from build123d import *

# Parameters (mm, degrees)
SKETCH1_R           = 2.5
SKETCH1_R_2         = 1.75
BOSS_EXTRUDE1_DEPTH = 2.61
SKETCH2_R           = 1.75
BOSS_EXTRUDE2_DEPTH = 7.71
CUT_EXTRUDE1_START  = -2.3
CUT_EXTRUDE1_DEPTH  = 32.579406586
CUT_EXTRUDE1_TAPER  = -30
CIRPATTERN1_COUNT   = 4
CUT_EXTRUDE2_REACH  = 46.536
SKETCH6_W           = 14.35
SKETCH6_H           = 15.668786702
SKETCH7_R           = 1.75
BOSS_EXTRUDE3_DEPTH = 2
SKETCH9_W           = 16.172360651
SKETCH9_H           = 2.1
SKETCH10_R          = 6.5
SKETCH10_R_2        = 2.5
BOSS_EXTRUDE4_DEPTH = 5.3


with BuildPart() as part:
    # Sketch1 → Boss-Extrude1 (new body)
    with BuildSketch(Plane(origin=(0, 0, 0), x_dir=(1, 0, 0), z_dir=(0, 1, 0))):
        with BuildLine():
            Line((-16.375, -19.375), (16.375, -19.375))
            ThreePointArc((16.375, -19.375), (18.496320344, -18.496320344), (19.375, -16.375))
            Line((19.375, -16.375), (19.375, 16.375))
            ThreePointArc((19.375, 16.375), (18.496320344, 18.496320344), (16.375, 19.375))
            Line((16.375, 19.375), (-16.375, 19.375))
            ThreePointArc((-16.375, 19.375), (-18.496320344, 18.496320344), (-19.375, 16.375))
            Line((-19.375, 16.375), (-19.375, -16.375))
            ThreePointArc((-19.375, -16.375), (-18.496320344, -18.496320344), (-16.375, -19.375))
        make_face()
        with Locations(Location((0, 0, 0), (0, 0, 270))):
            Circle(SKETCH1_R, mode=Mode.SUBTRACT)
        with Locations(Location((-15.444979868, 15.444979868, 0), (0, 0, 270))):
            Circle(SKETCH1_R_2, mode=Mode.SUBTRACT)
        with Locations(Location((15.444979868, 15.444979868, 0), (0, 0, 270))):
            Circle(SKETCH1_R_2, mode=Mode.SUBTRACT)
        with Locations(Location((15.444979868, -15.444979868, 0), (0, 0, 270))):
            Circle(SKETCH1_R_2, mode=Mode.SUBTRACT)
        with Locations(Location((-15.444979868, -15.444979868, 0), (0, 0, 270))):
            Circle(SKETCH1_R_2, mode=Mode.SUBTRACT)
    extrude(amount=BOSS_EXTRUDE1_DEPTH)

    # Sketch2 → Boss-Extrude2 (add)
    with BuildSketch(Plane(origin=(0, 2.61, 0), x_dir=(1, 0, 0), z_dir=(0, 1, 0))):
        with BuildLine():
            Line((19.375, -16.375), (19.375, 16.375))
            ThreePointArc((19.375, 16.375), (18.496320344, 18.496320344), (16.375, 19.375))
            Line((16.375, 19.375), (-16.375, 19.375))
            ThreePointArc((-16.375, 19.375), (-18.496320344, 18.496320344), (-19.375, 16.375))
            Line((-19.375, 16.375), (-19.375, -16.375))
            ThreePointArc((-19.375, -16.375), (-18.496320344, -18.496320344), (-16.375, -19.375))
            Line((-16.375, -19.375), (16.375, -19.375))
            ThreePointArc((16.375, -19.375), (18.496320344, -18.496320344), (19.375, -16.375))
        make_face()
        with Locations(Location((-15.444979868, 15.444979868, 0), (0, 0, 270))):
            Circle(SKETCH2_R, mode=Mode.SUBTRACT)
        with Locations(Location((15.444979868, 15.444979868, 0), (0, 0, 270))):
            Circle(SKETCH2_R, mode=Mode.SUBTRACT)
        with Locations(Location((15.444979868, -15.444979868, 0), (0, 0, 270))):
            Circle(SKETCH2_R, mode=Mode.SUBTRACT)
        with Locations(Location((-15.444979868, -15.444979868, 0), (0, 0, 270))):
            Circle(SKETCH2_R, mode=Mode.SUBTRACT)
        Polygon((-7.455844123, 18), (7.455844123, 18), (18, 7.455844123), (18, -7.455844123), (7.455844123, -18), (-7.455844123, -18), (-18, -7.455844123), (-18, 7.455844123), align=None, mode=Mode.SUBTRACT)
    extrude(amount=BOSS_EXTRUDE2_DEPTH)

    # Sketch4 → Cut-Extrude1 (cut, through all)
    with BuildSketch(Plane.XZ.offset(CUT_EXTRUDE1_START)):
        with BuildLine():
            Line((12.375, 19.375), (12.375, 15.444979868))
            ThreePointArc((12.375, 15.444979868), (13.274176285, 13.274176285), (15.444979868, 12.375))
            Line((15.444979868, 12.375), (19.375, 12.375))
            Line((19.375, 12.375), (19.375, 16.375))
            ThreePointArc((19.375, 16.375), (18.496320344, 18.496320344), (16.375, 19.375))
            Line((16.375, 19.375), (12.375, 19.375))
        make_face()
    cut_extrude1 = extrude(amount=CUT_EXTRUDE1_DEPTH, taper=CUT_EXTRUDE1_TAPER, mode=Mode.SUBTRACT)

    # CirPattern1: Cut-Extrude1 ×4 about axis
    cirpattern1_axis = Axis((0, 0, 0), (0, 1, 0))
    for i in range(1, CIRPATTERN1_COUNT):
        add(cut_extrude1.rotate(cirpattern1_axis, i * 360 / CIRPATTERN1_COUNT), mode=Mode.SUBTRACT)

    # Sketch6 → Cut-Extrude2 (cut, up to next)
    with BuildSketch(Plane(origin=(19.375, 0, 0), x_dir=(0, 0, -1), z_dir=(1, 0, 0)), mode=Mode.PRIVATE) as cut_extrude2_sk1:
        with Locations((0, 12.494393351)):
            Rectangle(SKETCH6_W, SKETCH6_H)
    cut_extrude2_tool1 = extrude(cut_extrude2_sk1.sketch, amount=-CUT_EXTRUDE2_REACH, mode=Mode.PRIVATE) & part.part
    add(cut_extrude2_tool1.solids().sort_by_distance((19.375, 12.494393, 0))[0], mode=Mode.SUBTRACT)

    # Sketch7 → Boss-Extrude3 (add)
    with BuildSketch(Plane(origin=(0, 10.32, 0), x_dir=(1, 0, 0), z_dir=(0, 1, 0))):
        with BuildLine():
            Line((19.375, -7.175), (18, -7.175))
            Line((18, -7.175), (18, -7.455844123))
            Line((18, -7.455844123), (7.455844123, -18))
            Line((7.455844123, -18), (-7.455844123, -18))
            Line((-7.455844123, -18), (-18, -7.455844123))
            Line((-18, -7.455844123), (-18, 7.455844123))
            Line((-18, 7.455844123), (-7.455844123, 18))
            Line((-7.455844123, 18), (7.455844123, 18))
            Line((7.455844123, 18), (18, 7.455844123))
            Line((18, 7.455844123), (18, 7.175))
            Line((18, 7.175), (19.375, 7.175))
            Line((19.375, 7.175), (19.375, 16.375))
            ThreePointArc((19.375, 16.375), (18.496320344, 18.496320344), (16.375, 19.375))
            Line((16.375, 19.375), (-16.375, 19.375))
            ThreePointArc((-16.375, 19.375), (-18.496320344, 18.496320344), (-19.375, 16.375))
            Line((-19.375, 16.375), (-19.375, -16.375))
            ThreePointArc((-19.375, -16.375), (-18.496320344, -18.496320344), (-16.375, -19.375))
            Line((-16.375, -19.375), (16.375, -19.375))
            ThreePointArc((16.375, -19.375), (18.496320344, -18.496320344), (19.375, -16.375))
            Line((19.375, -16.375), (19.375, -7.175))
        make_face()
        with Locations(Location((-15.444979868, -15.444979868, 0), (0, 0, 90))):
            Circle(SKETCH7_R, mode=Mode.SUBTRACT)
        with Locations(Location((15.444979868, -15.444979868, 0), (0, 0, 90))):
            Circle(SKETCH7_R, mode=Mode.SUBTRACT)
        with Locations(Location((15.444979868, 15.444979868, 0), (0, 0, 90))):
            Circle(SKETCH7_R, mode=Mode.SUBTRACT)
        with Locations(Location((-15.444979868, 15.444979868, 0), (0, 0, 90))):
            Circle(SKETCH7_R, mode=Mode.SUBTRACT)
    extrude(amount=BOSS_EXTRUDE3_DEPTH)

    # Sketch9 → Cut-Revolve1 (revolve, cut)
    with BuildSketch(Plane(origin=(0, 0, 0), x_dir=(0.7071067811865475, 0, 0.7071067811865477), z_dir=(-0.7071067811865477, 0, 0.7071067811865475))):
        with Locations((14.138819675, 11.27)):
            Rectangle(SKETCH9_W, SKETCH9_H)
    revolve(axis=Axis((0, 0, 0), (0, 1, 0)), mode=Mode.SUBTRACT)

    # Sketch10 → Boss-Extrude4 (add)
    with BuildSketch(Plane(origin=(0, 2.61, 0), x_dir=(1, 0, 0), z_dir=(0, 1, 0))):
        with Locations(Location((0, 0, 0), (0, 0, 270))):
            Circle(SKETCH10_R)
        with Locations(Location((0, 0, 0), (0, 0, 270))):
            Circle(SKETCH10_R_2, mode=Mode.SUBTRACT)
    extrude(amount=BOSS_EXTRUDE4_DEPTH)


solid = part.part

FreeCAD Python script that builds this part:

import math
import FreeCAD as App
import Part
import Sketcher
from FreeCAD import Vector

doc = App.newDocument("Part")
body = doc.addObject("PartDesign::Body", "Body")

# Sketch on XZ plane
sketch1 = doc.addObject("Sketcher::SketchObject", "Sketch")
body.addObject(sketch1)
sketch1.AttachmentSupport = (doc.XZ_Plane, [""])
sketch1.MapMode = "FlatFace"
sketch1.addGeometry([
    Part.LineSegment(Vector(-16.4, 19.4, 0), Vector(16.4, 19.4, 0)),  # 0
    Part.ArcOfCircle(Part.Circle(Vector(16.4, 16.4, 0), Vector(0, 0, 1), 3), math.radians(0), math.radians(90)),  # 1
    Part.LineSegment(Vector(19.4, 16.4, 0), Vector(19.4, -16.4, 0)),  # 2
    Part.ArcOfCircle(Part.Circle(Vector(16.4, -16.4, 0), Vector(0, 0, 1), 3), math.radians(-90), math.radians(0)),  # 3
    Part.LineSegment(Vector(16.4, -19.4, 0), Vector(-16.4, -19.4, 0)),  # 4
    Part.ArcOfCircle(Part.Circle(Vector(-16.4, -16.4, 0), Vector(0, 0, 1), 3), math.radians(180), math.radians(270)),  # 5
    Part.LineSegment(Vector(-19.4, -16.4, 0), Vector(-19.4, 16.4, 0)),  # 6
    Part.ArcOfCircle(Part.Circle(Vector(-16.4, 16.4, 0), Vector(0, 0, 1), 3), math.radians(90), math.radians(180)),  # 7
    Part.Circle(Vector(-15.4, 15.4, 0), Vector(0, 0, 1), 1.8),  # 8
    Part.Circle(Vector(15.4, 15.4, 0), Vector(0, 0, 1), 1.8),  # 9
    Part.Circle(Vector(0, 0, 0), Vector(0, 0, 1), 2.5),  # 10
    Part.Circle(Vector(-15.4, -15.4, 0), Vector(0, 0, 1), 1.8),  # 11
    Part.Circle(Vector(15.4, -15.4, 0), Vector(0, 0, 1), 1.8),  # 12
], False)
sketch1.addConstraint([
    Sketcher.Constraint("Tangent", 0, 2, 1, 2),
    Sketcher.Constraint("Tangent", 1, 1, 2, 1),
    Sketcher.Constraint("Tangent", 2, 2, 3, 2),
    Sketcher.Constraint("Tangent", 3, 1, 4, 1),
    Sketcher.Constraint("Tangent", 4, 2, 5, 2),
    Sketcher.Constraint("Tangent", 5, 1, 6, 1),
    Sketcher.Constraint("Tangent", 6, 2, 7, 2),
    Sketcher.Constraint("Tangent", 7, 1, 0, 1),
    Sketcher.Constraint("Horizontal", 0),
    Sketcher.Constraint("Vertical", 2),
    Sketcher.Constraint("Horizontal", 4),
    Sketcher.Constraint("Vertical", 6),
    Sketcher.Constraint("Coincident", 10, 3, -1, 1),
    Sketcher.Constraint("Equal", 1, 3),
    Sketcher.Constraint("Equal", 3, 5),
    Sketcher.Constraint("Equal", 5, 7),
    Sketcher.Constraint("Equal", 8, 9),
    Sketcher.Constraint("Equal", 9, 11),
    Sketcher.Constraint("Equal", 11, 12),
    Sketcher.Constraint("Symmetric", 1, 3, 5, 3, -1, 1),
    Sketcher.Constraint("Symmetric", 9, 3, 11, 3, -1, 1),
    Sketcher.Constraint("Symmetric", 8, 3, 12, 3, -1, 1),
    Sketcher.Constraint("Symmetric", 8, 3, 9, 3, -2),
    Sketcher.Constraint("Equal", 4, 2),
    Sketcher.Constraint("Diameter", 10, 5.0),
    Sketcher.Constraint("Radius", 1, 3.0),
    Sketcher.Constraint("Diameter", 8, 3.5),
    Sketcher.Constraint("DistanceX", 0, 1, 0, 2, 32.75),
    Sketcher.Constraint("DistanceX", 8, 3, -1, 1, 15.44498),
    Sketcher.Constraint("DistanceY", -1, 1, 8, 3, 15.44498),
])
pad1 = doc.addObject("PartDesign::Pad", "Pad")
body.addObject(pad1)
pad1.Profile = sketch1
pad1.Length = 2.61
pad1.Reversed = True

# Sketch on XZ plane
sketch2 = doc.addObject("Sketcher::SketchObject", "Sketch001")
body.addObject(sketch2)
sketch2.AttachmentSupport = (doc.XZ_Plane, [""])
sketch2.MapMode = "FlatFace"
sketch2.AttachmentOffset = App.Placement(Vector(0, 0, -2.61), App.Rotation())
sketch2.addGeometry([
    Part.LineSegment(Vector(19.4, 16.4, 0), Vector(19.4, -16.4, 0)),  # 0
    Part.ArcOfCircle(Part.Circle(Vector(16.4, -16.4, 0), Vector(0, 0, 1), 3), math.radians(-90), math.radians(0)),  # 1
    Part.LineSegment(Vector(16.4, -19.4, 0), Vector(-16.4, -19.4, 0)),  # 2
    Part.ArcOfCircle(Part.Circle(Vector(-16.4, -16.4, 0), Vector(0, 0, 1), 3), math.radians(180), math.radians(270)),  # 3
    Part.LineSegment(Vector(-19.4, -16.4, 0), Vector(-19.4, 16.4, 0)),  # 4
    Part.ArcOfCircle(Part.Circle(Vector(-16.4, 16.4, 0), Vector(0, 0, 1), 3), math.radians(90), math.radians(180)),  # 5
    Part.LineSegment(Vector(-16.4, 19.4, 0), Vector(16.4, 19.4, 0)),  # 6
    Part.ArcOfCircle(Part.Circle(Vector(16.4, 16.4, 0), Vector(0, 0, 1), 3), math.radians(0), math.radians(90)),  # 7
    Part.Circle(Vector(-15.4, 15.4, 0), Vector(0, 0, 1), 1.8),  # 8
    Part.Circle(Vector(15.4, 15.4, 0), Vector(0, 0, 1), 1.8),  # 9
    Part.Circle(Vector(-15.4, -15.4, 0), Vector(0, 0, 1), 1.8),  # 10
    Part.LineSegment(Vector(-18, -7.5, 0), Vector(-7.5, -18, 0)),  # 11
    Part.LineSegment(Vector(-7.5, -18, 0), Vector(7.5, -18, 0)),  # 12
    Part.LineSegment(Vector(7.5, -18, 0), Vector(18, -7.5, 0)),  # 13
    Part.LineSegment(Vector(18, -7.5, 0), Vector(18, 7.5, 0)),  # 14
    Part.LineSegment(Vector(18, 7.5, 0), Vector(7.5, 18, 0)),  # 15
    Part.LineSegment(Vector(7.5, 18, 0), Vector(-7.5, 18, 0)),  # 16
    Part.LineSegment(Vector(-7.5, 18, 0), Vector(-18, 7.5, 0)),  # 17
    Part.LineSegment(Vector(-18, 7.5, 0), Vector(-18, -7.5, 0)),  # 18
    Part.Circle(Vector(15.4, -15.4, 0), Vector(0, 0, 1), 1.8),  # 19
], False)
sketch2.addConstraint([
    Sketcher.Constraint("Tangent", 0, 2, 1, 2),
    Sketcher.Constraint("Tangent", 1, 1, 2, 1),
    Sketcher.Constraint("Tangent", 2, 2, 3, 2),
    Sketcher.Constraint("Tangent", 3, 1, 4, 1),
    Sketcher.Constraint("Tangent", 4, 2, 5, 2),
    Sketcher.Constraint("Tangent", 5, 1, 6, 1),
    Sketcher.Constraint("Tangent", 6, 2, 7, 2),
    Sketcher.Constraint("Tangent", 7, 1, 0, 1),
    Sketcher.Constraint("Coincident", 11, 2, 12, 1),
    Sketcher.Constraint("Coincident", 12, 2, 13, 1),
    Sketcher.Constraint("Coincident", 13, 2, 14, 1),
    Sketcher.Constraint("Coincident", 14, 2, 15, 1),
    Sketcher.Constraint("Coincident", 15, 2, 16, 1),
    Sketcher.Constraint("Coincident", 16, 2, 17, 1),
    Sketcher.Constraint("Coincident", 17, 2, 18, 1),
    Sketcher.Constraint("Coincident", 18, 2, 11, 1),
    Sketcher.Constraint("Vertical", 0),
    Sketcher.Constraint("Horizontal", 2),
    Sketcher.Constraint("Vertical", 4),
    Sketcher.Constraint("Horizontal", 6),
    Sketcher.Constraint("Horizontal", 12),
    Sketcher.Constraint("Vertical", 14),
    Sketcher.Constraint("Horizontal", 16),
    Sketcher.Constraint("Vertical", 18),
    Sketcher.Constraint("Equal", 1, 3),
    Sketcher.Constraint("Equal", 3, 5),
    Sketcher.Constraint("Equal", 5, 7),
    Sketcher.Constraint("Equal", 8, 9),
    Sketcher.Constraint("Equal", 9, 10),
    Sketcher.Constraint("Equal", 10, 19),
    Sketcher.Constraint("Symmetric", 1, 3, 5, 3, -1, 1),
    Sketcher.Constraint("Symmetric", 9, 3, 10, 3, -1, 1),
    Sketcher.Constraint("Symmetric", 8, 3, 19, 3, -1, 1),
    Sketcher.Constraint("Symmetric", 11, 2, 15, 2, -1, 1),
    Sketcher.Constraint("Symmetric", 13, 2, 17, 2, -1, 1),
    Sketcher.Constraint("Symmetric", 8, 3, 9, 3, -2),
    Sketcher.Constraint("Perpendicular", 11, 13),
    Sketcher.Constraint("Perpendicular", 13, 15),
    Sketcher.Constraint("Perpendicular", 15, 17),
    Sketcher.Constraint("Horizontal", 14, 2, 17, 2),
    Sketcher.Constraint("Vertical", 12, 2, 15, 2),
    Sketcher.Constraint("Equal", 6, 0),
    Sketcher.Constraint("Equal", 16, 14),
    Sketcher.Constraint("Radius", 1, 3.0),
    Sketcher.Constraint("Diameter", 8, 3.5),
    Sketcher.Constraint("DistanceY", 11, 2, -1, 1, 18.0),
    Sketcher.Constraint("DistanceX", 2, 2, 2, 1, 32.75),
    Sketcher.Constraint("DistanceX", 12, 1, 12, 2, 14.911688),
    Sketcher.Constraint("DistanceX", 8, 3, -1, 1, 15.44498),
    Sketcher.Constraint("DistanceY", -1, 1, 8, 3, 15.44498),
])
pad2 = doc.addObject("PartDesign::Pad", "Pad001")
body.addObject(pad2)
pad2.Profile = sketch2
pad2.Length = 7.71
pad2.Reversed = True

# Sketch on XZ plane
sketch3 = doc.addObject("Sketcher::SketchObject", "Sketch002")
body.addObject(sketch3)
sketch3.AttachmentSupport = (doc.XZ_Plane, [""])
sketch3.MapMode = "FlatFace"
sketch3.AttachmentOffset = App.Placement(Vector(0, 0, -2.3), App.Rotation())
sketch3.addGeometry([
    Part.LineSegment(Vector(12.4, 19.4, 0), Vector(12.4, 15.4, 0)),  # 0
    Part.ArcOfCircle(Part.Circle(Vector(15.4, 15.4, 0), Vector(0, 0, 1), 3.1), math.radians(180), math.radians(270)),  # 1
    Part.LineSegment(Vector(15.4, 12.4, 0), Vector(19.4, 12.4, 0)),  # 2
    Part.LineSegment(Vector(19.4, 12.4, 0), Vector(19.4, 16.4, 0)),  # 3
    Part.ArcOfCircle(Part.Circle(Vector(16.4, 16.4, 0), Vector(0, 0, 1), 3), math.radians(0), math.radians(90)),  # 4
    Part.LineSegment(Vector(16.4, 19.4, 0), Vector(12.4, 19.4, 0)),  # 5
], False)
sketch3.addConstraint([
    Sketcher.Constraint("Tangent", 0, 2, 1, 1),
    Sketcher.Constraint("Tangent", 1, 2, 2, 1),
    Sketcher.Constraint("Coincident", 2, 2, 3, 1),
    Sketcher.Constraint("Tangent", 3, 2, 4, 1),
    Sketcher.Constraint("Tangent", 4, 2, 5, 1),
    Sketcher.Constraint("Coincident", 5, 2, 0, 1),
    Sketcher.Constraint("Vertical", 0),
    Sketcher.Constraint("Horizontal", 2),
    Sketcher.Constraint("Vertical", 3),
    Sketcher.Constraint("Horizontal", 5),
    Sketcher.Constraint("Equal", 2, 0),
    Sketcher.Constraint("Radius", 4, 3.0),
    Sketcher.Constraint("DistanceX", 5, 2, 5, 1, 4.0),
    Sketcher.Constraint("Radius", 1, 3.06998),
    Sketcher.Constraint("DistanceX", -1, 1, 4, 3, 16.375),
    Sketcher.Constraint("DistanceY", -1, 1, 4, 3, 16.375),
])
pocket1 = doc.addObject("PartDesign::Pocket", "Pocket")
body.addObject(pocket1)
pocket1.Profile = sketch3
pocket1.Type = "ThroughAll"
pocket1.Reversed = True
pocket1.TaperAngle = 30
doc.recompute()

polarpattern = doc.addObject("PartDesign::PolarPattern", "PolarPattern")
body.addObject(polarpattern)
polarpattern.Originals = [pocket1]
polarpattern.Axis = (doc.Y_Axis, [""])
polarpattern.Angle = 360
polarpattern.Occurrences = 4
body.Tip = polarpattern

# Sketch on YZ plane
sketch4 = doc.addObject("Sketcher::SketchObject", "Sketch003")
body.addObject(sketch4)
sketch4.AttachmentSupport = (doc.YZ_Plane, [""])
sketch4.MapMode = "FlatFace"
sketch4.AttachmentOffset = App.Placement(Vector(0, 0, 19.375), App.Rotation())
sketch4.addGeometry([
    Part.LineSegment(Vector(20, 7, 0), Vector(5, 7, 0)),
    Part.LineSegment(Vector(5, 7, 0), Vector(5, -7, 0)),
    Part.LineSegment(Vector(5, -7, 0), Vector(20, -7, 0)),
    Part.LineSegment(Vector(20, -7, 0), Vector(20, 7, 0)),
], False)
sketch4.addConstraint([
    Sketcher.Constraint("Coincident", 0, 2, 1, 1),
    Sketcher.Constraint("Coincident", 1, 2, 2, 1),
    Sketcher.Constraint("Coincident", 2, 2, 3, 1),
    Sketcher.Constraint("Coincident", 3, 2, 0, 1),
    Sketcher.Constraint("Horizontal", 0),
    Sketcher.Constraint("Vertical", 1),
    Sketcher.Constraint("Horizontal", 2),
    Sketcher.Constraint("Vertical", 3),
    Sketcher.Constraint("DistanceY", 1, 2, 1, 1, 14.35),
    Sketcher.Constraint("DistanceX", -1, 1, 0, 2, 4.66),
    Sketcher.Constraint("DistanceY", -1, 1, 0, 2, 7.175),
    Sketcher.Constraint("DistanceX", 0, 2, 0, 1, 15.668787),
])
pocket2 = doc.addObject("PartDesign::Pocket", "Pocket001")
body.addObject(pocket2)
pocket2.Profile = sketch4
pocket2.Length = 1.375

# Sketch on XZ plane
sketch5 = doc.addObject("Sketcher::SketchObject", "Sketch004")
body.addObject(sketch5)
sketch5.AttachmentSupport = (doc.XZ_Plane, [""])
sketch5.MapMode = "FlatFace"
sketch5.AttachmentOffset = App.Placement(Vector(0, 0, -10.32), App.Rotation())
sketch5.addGeometry([
    Part.LineSegment(Vector(19.38, 7.17, 0), Vector(18, 7.17, 0)),  # 0
    Part.LineSegment(Vector(18, 7.17, 0), Vector(18, 7.46, 0)),  # 1
    Part.LineSegment(Vector(18, 7.46, 0), Vector(7.46, 18, 0)),  # 2
    Part.LineSegment(Vector(7.46, 18, 0), Vector(-7.46, 18, 0)),  # 3
    Part.LineSegment(Vector(-7.46, 18, 0), Vector(-18, 7.46, 0)),  # 4
    Part.LineSegment(Vector(-18, 7.46, 0), Vector(-18, -7.46, 0)),  # 5
    Part.LineSegment(Vector(-18, -7.46, 0), Vector(-7.46, -18, 0)),  # 6
    Part.LineSegment(Vector(-7.46, -18, 0), Vector(7.46, -18, 0)),  # 7
    Part.LineSegment(Vector(7.46, -18, 0), Vector(18, -7.46, 0)),  # 8
    Part.LineSegment(Vector(18, -7.46, 0), Vector(18, -7.17, 0)),  # 9
    Part.LineSegment(Vector(18, -7.17, 0), Vector(19.38, -7.17, 0)),  # 10
    Part.LineSegment(Vector(19.38, -7.17, 0), Vector(19.38, -16.38, 0)),  # 11
    Part.ArcOfCircle(Part.Circle(Vector(16.38, -16.38, 0), Vector(0, 0, 1), 3), math.radians(-90), math.radians(0)),  # 12
    Part.LineSegment(Vector(16.38, -19.38, 0), Vector(-16.38, -19.38, 0)),  # 13
    Part.ArcOfCircle(Part.Circle(Vector(-16.38, -16.38, 0), Vector(0, 0, 1), 3), math.radians(180), math.radians(270)),  # 14
    Part.LineSegment(Vector(-19.38, -16.38, 0), Vector(-19.38, 16.38, 0)),  # 15
    Part.ArcOfCircle(Part.Circle(Vector(-16.38, 16.38, 0), Vector(0, 0, 1), 3), math.radians(90), math.radians(180)),  # 16
    Part.LineSegment(Vector(-16.38, 19.38, 0), Vector(16.38, 19.38, 0)),  # 17
    Part.ArcOfCircle(Part.Circle(Vector(16.38, 16.38, 0), Vector(0, 0, 1), 3), math.radians(0), math.radians(90)),  # 18
    Part.LineSegment(Vector(19.38, 16.38, 0), Vector(19.38, 7.17, 0)),  # 19
    Part.Circle(Vector(-15.44, 15.44, 0), Vector(0, 0, 1), 1.75),  # 20
    Part.Circle(Vector(15.44, 15.44, 0), Vector(0, 0, 1), 1.75),  # 21
    Part.Circle(Vector(-15.44, -15.44, 0), Vector(0, 0, 1), 1.75),  # 22
    Part.Circle(Vector(15.44, -15.44, 0), Vector(0, 0, 1), 1.75),  # 23
], False)
sketch5.addConstraint([
    Sketcher.Constraint("Coincident", 0, 2, 1, 1),
    Sketcher.Constraint("Coincident", 1, 2, 2, 1),
    Sketcher.Constraint("Coincident", 2, 2, 3, 1),
    Sketcher.Constraint("Coincident", 3, 2, 4, 1),
    Sketcher.Constraint("Coincident", 4, 2, 5, 1),
    Sketcher.Constraint("Coincident", 5, 2, 6, 1),
    Sketcher.Constraint("Coincident", 6, 2, 7, 1),
    Sketcher.Constraint("Coincident", 7, 2, 8, 1),
    Sketcher.Constraint("Coincident", 8, 2, 9, 1),
    Sketcher.Constraint("Coincident", 9, 2, 10, 1),
    Sketcher.Constraint("Coincident", 10, 2, 11, 1),
    Sketcher.Constraint("Tangent", 11, 2, 12, 2),
    Sketcher.Constraint("Tangent", 12, 1, 13, 1),
    Sketcher.Constraint("Tangent", 13, 2, 14, 2),
    Sketcher.Constraint("Tangent", 14, 1, 15, 1),
    Sketcher.Constraint("Tangent", 15, 2, 16, 2),
    Sketcher.Constraint("Tangent", 16, 1, 17, 1),
    Sketcher.Constraint("Tangent", 17, 2, 18, 2),
    Sketcher.Constraint("Tangent", 18, 1, 19, 1),
    Sketcher.Constraint("Coincident", 19, 2, 0, 1),
    Sketcher.Constraint("Horizontal", 0),
    Sketcher.Constraint("Vertical", 1),
    Sketcher.Constraint("Horizontal", 3),
    Sketcher.Constraint("Vertical", 5),
    Sketcher.Constraint("Horizontal", 7),
    Sketcher.Constraint("Vertical", 9),
    Sketcher.Constraint("Horizontal", 10),
    Sketcher.Constraint("Vertical", 11),
    Sketcher.Constraint("Horizontal", 13),
    Sketcher.Constraint("Vertical", 15),
    Sketcher.Constraint("Horizontal", 17),
    Sketcher.Constraint("Vertical", 19),
    Sketcher.Constraint("Equal", 12, 14),
    Sketcher.Constraint("Equal", 14, 16),
    Sketcher.Constraint("Equal", 16, 18),
    Sketcher.Constraint("Equal", 20, 21),
    Sketcher.Constraint("Equal", 21, 22),
    Sketcher.Constraint("Equal", 22, 23),
    Sketcher.Constraint("Symmetric", 12, 3, 16, 3, -1, 1),
    Sketcher.Constraint("Symmetric", 21, 3, 22, 3, -1, 1),
    Sketcher.Constraint("Symmetric", 20, 3, 23, 3, -1, 1),
    Sketcher.Constraint("Symmetric", 1, 2, 5, 2, -1, 1),
    Sketcher.Constraint("Symmetric", 2, 2, 6, 2, -1, 1),
    Sketcher.Constraint("Symmetric", 4, 2, 8, 2, -1, 1),
    Sketcher.Constraint("Symmetric", 20, 3, 21, 3, -2),
    Sketcher.Constraint("Symmetric", 10, 2, 19, 2, -1),
    Sketcher.Constraint("Perpendicular", 2, 4),
    Sketcher.Constraint("Perpendicular", 6, 8),
    Sketcher.Constraint("Horizontal", 1, 2, 4, 2),
    Sketcher.Constraint("Vertical", 3, 2, 6, 2),
    Sketcher.Constraint("Equal", 7, 5),
    Sketcher.Constraint("Equal", 17, 15),
    Sketcher.Constraint("Radius", 12, 3.0),
    Sketcher.Constraint("Diameter", 20, 3.5),
    Sketcher.Constraint("DistanceY", 11, 2, 11, 1, 9.2),
    Sketcher.Constraint("DistanceX", -1, 1, 0, 2, 18.0),
    Sketcher.Constraint("DistanceX", 13, 2, 13, 1, 32.75),
    Sketcher.Constraint("DistanceX", 3, 2, 3, 1, 14.911688),
    Sketcher.Constraint("DistanceX", 20, 3, -1, 1, 15.44498),
    Sketcher.Constraint("DistanceY", -1, 1, 20, 3, 15.44498),
])
pad3 = doc.addObject("PartDesign::Pad", "Pad002")
body.addObject(pad3)
pad3.Profile = sketch5
pad3.Length = 2
pad3.Reversed = True

# Sketch on an angled plane
sketch6 = doc.addObject("Sketcher::SketchObject", "Sketch005")
body.addObject(sketch6)
sketch6.Placement = App.Placement(Vector(0, 0, 0), App.Rotation(Vector(0.707106781, 0, 0.707106781), Vector(0, 0.999999999, 0), Vector(-0.707106781, 0, 0.707106781), "ZXY"))
sketch6.addGeometry([
    Part.LineSegment(Vector(6.1, 12.3, 0), Vector(6.1, 10.2, 0)),
    Part.LineSegment(Vector(6.1, 10.2, 0), Vector(22.2, 10.2, 0)),
    Part.LineSegment(Vector(22.2, 10.2, 0), Vector(22.2, 12.3, 0)),
    Part.LineSegment(Vector(22.2, 12.3, 0), Vector(6.1, 12.3, 0)),
], False)
sketch6.addConstraint([
    Sketcher.Constraint("Coincident", 0, 2, 1, 1),
    Sketcher.Constraint("Coincident", 1, 2, 2, 1),
    Sketcher.Constraint("Coincident", 2, 2, 3, 1),
    Sketcher.Constraint("Coincident", 3, 2, 0, 1),
    Sketcher.Constraint("Vertical", 0),
    Sketcher.Constraint("Horizontal", 1),
    Sketcher.Constraint("Vertical", 2),
    Sketcher.Constraint("Horizontal", 3),
    Sketcher.Constraint("DistanceY", 0, 2, 0, 1, 2.1),
    Sketcher.Constraint("DistanceY", -1, 1, 0, 2, 10.22),
    Sketcher.Constraint("DistanceX", -1, 1, 1, 2, 22.225),
    Sketcher.Constraint("DistanceX", 1, 1, 1, 2, 16.172361),
])
groove = doc.addObject("PartDesign::Groove", "Groove")
body.addObject(groove)
groove.Profile = sketch6
groove.ReferenceAxis = (sketch6, ["V_Axis"])
groove.Angle = 360

# Sketch on XZ plane
sketch7 = doc.addObject("Sketcher::SketchObject", "Sketch006")
body.addObject(sketch7)
sketch7.AttachmentSupport = (doc.XZ_Plane, [""])
sketch7.MapMode = "FlatFace"
sketch7.AttachmentOffset = App.Placement(Vector(0, 0, -2.61), App.Rotation())
sketch7.addGeometry([
    Part.Circle(Vector(0, 0, 0), Vector(0, 0, 1), 6.5),
    Part.Circle(Vector(0, 0, 0), Vector(0, 0, 1), 2.5),
], False)
sketch7.addConstraint([
    Sketcher.Constraint("Coincident", 0, 3, -1, 1),
    Sketcher.Constraint("Coincident", 1, 3, -1, 1),
    Sketcher.Constraint("Diameter", 0, 13.0),
    Sketcher.Constraint("Diameter", 1, 5.0),
])
pad4 = doc.addObject("PartDesign::Pad", "Pad003")
body.addObject(pad4)
pad4.Profile = sketch7
pad4.Length = 5.3
pad4.Reversed = True

doc.recompute()
